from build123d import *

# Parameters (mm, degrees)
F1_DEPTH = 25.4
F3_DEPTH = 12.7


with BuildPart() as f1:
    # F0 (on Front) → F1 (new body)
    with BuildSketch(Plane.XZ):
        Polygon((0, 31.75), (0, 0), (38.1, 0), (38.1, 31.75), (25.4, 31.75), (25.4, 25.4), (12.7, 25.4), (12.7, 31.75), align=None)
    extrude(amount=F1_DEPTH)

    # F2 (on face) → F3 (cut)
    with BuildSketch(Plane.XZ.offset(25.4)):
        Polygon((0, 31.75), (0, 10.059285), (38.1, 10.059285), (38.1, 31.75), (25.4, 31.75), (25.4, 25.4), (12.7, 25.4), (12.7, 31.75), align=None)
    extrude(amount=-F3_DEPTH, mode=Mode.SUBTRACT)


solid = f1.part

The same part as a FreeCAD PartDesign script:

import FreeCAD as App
import Part
import Sketcher

V = App.Vector
Q = App.Units.Quantity


def add_polygon(sketch, points):
    """Adds a closed chain of lines whose ends are joined by coincident constraints."""
    first, n = sketch.GeometryCount, len(points)
    for a, b in zip(points, points[1:] + points[:1]):
        sketch.addGeometry(Part.LineSegment(App.Vector(*a, 0), App.Vector(*b, 0)), False)
    for i in range(n):
        sketch.addConstraint(Sketcher.Constraint("Coincident", first + i, 2, first + (i + 1) % n, 1))

doc = App.newDocument("Part")
body = doc.addObject("PartDesign::Body", "Body")

# Sketch on XZ plane
sketch1 = body.newObject("Sketcher::SketchObject", "Sketch")
sketch1.AttachmentSupport = (doc.getObject("XZ_Plane"), [""])
sketch1.MapMode = "FlatFace"
add_polygon(sketch1, [(0, 32), (0, 0), (38, 0), (38, 32), (25, 32), (25, 25), (13, 25), (13, 32)])  # lines 0-7
sketch1.addConstraint([
    Sketcher.Constraint("Vertical", 0),
    Sketcher.Constraint("Horizontal", 1),
    Sketcher.Constraint("Vertical", 2),
    Sketcher.Constraint("Horizontal", 3),
    Sketcher.Constraint("Vertical", 4),
    Sketcher.Constraint("Horizontal", 5),
    Sketcher.Constraint("Vertical", 6),
    Sketcher.Constraint("Horizontal", 7),
    Sketcher.Constraint("Coincident", 0, 2, -1, 1),
    Sketcher.Constraint("Horizontal", 3, 2, 6, 2),
    Sketcher.Constraint("Equal", 3, 5),
    Sketcher.Constraint("Equal", 5, 7),
    Sketcher.Constraint("DistanceX", 1, 1, 1, 2, Q("1.5 in")),
    Sketcher.Constraint("DistanceY", -1, 1, 4, 2, Q("1 in")),
    Sketcher.Constraint("DistanceY", 0, 2, 0, 1, Q("1.25 in")),
])
pad1 = body.newObject("PartDesign::Pad", "Pad")
pad1.Profile = sketch1
pad1.Length = Q("1 in")

# Sketch on XZ plane
sketch2 = body.newObject("Sketcher::SketchObject", "Sketch001")
sketch2.AttachmentSupport = (doc.getObject("XZ_Plane"), [""])
sketch2.MapMode = "FlatFace"
sketch2.AttachmentOffset = App.Placement(V(0, 0, 1 * 25.4), App.Rotation())
add_polygon(sketch2, [(0, 32), (0, 10), (38, 10), (38, 32), (25, 32), (25, 25), (13, 25), (13, 32)])  # lines 0-7
sketch2.addConstraint([
    Sketcher.Constraint("Vertical", 0),
    Sketcher.Constraint("Horizontal", 1),
    Sketcher.Constraint("Vertical", 2),
    Sketcher.Constraint("Horizontal", 3),
    Sketcher.Constraint("Vertical", 4),
    Sketcher.Constraint("Horizontal", 5),
    Sketcher.Constraint("Vertical", 6),
    Sketcher.Constraint("Horizontal", 7),
    Sketcher.Constraint("PointOnObject", 0, 2, -2),
    Sketcher.Constraint("Horizontal", 3, 2, 6, 2),
    Sketcher.Constraint("Equal", 3, 5),
    Sketcher.Constraint("Equal", 5, 7),
    Sketcher.Constraint("DistanceX", 1, 1, 1, 2, Q("1.5 in")),
    Sketcher.Constraint("DistanceY", -1, 1, 4, 2, Q("1 in")),
    Sketcher.Constraint("DistanceY", 4, 2, 4, 1, Q("0.25 in")),
    Sketcher.Constraint("DistanceY", 0, 2, 0, 1, 21.690715),
])
pocket1 = body.newObject("PartDesign::Pocket", "Pocket")
pocket1.Profile = sketch2
pocket1.Length = Q("0.5 in")

doc.recompute()
